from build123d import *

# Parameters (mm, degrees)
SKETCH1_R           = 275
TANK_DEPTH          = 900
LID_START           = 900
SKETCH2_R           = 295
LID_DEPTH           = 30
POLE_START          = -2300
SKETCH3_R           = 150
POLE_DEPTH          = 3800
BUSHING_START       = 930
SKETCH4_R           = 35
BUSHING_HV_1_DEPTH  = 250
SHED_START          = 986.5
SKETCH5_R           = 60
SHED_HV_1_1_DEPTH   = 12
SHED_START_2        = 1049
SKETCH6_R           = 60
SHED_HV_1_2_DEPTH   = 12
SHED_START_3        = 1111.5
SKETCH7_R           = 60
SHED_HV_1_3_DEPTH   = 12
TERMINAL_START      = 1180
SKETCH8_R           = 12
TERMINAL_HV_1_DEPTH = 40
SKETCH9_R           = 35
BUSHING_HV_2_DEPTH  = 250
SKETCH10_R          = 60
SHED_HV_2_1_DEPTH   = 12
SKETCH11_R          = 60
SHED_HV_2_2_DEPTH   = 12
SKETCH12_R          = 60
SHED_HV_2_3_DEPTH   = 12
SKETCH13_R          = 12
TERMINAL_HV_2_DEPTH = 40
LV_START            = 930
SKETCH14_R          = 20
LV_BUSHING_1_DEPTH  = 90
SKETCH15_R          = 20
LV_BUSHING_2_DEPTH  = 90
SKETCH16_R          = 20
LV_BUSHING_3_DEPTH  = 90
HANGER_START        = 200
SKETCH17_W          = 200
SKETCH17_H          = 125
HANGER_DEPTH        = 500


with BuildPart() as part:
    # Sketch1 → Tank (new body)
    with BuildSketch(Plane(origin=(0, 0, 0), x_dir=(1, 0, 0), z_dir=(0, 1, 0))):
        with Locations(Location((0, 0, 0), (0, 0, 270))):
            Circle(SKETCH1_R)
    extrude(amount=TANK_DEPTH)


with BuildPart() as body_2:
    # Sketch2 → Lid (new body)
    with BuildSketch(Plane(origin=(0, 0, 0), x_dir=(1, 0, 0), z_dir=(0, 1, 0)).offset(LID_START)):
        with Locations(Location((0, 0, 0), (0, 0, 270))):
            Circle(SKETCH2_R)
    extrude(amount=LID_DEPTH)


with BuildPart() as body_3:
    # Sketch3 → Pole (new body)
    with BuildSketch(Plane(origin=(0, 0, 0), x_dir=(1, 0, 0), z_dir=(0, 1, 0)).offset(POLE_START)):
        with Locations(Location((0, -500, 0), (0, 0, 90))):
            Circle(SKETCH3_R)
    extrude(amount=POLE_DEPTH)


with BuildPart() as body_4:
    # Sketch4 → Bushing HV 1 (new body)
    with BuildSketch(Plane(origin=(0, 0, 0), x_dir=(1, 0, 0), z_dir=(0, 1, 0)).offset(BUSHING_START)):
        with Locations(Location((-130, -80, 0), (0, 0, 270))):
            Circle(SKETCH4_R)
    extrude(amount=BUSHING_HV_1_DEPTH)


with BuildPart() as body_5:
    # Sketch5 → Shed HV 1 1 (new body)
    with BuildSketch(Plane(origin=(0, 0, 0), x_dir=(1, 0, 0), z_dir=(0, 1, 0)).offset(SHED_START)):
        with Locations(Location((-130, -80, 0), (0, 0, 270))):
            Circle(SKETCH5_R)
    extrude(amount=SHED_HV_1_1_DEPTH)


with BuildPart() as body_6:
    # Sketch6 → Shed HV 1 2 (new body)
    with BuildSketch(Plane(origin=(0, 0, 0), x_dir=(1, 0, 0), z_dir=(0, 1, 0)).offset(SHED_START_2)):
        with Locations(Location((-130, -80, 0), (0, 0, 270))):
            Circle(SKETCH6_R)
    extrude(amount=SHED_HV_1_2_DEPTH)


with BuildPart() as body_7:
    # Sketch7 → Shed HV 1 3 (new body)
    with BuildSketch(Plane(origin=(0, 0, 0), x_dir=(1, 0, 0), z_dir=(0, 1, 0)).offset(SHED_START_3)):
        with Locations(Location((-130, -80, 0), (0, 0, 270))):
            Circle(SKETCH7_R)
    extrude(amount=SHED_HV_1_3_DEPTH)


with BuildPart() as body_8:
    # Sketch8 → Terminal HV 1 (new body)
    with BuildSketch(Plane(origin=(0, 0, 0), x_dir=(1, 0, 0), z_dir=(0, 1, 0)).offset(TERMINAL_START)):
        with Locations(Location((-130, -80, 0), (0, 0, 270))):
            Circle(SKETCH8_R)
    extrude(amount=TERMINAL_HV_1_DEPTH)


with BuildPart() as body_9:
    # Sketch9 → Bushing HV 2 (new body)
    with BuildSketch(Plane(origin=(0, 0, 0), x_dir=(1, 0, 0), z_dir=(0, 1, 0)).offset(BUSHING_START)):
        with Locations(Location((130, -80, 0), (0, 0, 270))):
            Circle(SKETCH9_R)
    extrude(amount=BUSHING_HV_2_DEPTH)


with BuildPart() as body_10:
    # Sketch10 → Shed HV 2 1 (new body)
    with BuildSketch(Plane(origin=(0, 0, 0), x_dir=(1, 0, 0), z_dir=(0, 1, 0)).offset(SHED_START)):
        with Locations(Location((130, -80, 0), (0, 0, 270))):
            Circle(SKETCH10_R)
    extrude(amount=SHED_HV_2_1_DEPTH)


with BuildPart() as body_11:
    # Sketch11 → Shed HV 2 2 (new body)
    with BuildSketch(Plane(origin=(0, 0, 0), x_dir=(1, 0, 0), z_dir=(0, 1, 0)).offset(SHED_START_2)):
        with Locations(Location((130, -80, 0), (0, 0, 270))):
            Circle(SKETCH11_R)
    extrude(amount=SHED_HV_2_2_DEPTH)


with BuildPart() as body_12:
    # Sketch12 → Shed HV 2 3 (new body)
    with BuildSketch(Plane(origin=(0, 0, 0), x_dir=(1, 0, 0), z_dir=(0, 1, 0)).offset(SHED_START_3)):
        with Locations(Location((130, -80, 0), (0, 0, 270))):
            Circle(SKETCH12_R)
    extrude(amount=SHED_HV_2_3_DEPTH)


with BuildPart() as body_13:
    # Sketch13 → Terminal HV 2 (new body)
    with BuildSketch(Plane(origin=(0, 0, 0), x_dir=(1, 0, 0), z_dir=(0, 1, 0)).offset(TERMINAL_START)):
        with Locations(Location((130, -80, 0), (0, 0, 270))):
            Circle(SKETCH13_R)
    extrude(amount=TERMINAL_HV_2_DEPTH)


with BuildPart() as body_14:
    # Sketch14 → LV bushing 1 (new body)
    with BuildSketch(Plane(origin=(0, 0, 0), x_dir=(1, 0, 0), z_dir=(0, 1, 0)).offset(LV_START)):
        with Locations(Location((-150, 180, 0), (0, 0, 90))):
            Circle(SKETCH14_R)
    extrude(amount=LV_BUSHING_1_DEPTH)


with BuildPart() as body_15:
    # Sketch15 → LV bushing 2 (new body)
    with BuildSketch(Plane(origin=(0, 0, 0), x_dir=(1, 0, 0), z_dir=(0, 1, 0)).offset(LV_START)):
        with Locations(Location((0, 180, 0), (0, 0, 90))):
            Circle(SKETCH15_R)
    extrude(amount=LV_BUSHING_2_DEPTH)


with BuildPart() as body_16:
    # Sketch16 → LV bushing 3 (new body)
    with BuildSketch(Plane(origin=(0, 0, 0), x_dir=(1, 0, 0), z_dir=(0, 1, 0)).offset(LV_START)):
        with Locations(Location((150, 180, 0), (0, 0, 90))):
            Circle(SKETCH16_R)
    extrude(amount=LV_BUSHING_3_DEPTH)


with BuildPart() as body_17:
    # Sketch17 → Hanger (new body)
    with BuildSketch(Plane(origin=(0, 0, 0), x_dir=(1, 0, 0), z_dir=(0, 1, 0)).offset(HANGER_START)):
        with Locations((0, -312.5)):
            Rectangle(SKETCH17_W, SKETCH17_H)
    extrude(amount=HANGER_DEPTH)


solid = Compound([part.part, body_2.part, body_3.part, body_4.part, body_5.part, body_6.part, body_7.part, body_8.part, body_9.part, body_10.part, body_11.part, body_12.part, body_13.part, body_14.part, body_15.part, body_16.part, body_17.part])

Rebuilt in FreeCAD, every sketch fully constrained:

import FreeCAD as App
import Part
import Sketcher

doc = App.newDocument("Part")
body = doc.addObject("PartDesign::Body", "Body")

sketch1 = doc.addObject("Sketcher::SketchObject", "Sketch")
body.addObject(sketch1)
sketch1.AttachmentSupport = (doc.XZ_Plane, [""])
sketch1.MapMode = "FlatFace"
sketch1.addGeometry(Part.Circle(App.Vector(0, 0, 0), App.Vector(0, 0, 1), 275), False)
sketch1.addConstraint([
    Sketcher.Constraint("Coincident", 0, 3, -1, 1),
    Sketcher.Constraint("Diameter", 0, 550.0),
])
pad1 = doc.addObject("PartDesign::Pad", "Pad")
body.addObject(pad1)
pad1.Profile = sketch1
pad1.Length = 900
pad1.Reversed = True
body2 = doc.addObject("PartDesign::Body", "Body001")

sketch2 = doc.addObject("Sketcher::SketchObject", "Sketch001")
body2.addObject(sketch2)
sketch2.AttachmentSupport = (doc.getObject("XZ_Plane001"), [""])
sketch2.MapMode = "FlatFace"
sketch2.AttachmentOffset = App.Placement(App.Vector(0, 0, -900), App.Rotation())
sketch2.addGeometry(Part.Circle(App.Vector(0, 0, 0), App.Vector(0, 0, 1), 295), False)
sketch2.addConstraint([
    Sketcher.Constraint("Coincident", 0, 3, -1, 1),
    Sketcher.Constraint("Diameter", 0, 590.0),
])
pad2 = doc.addObject("PartDesign::Pad", "Pad001")
body2.addObject(pad2)
pad2.Profile = sketch2
pad2.Length = 30
pad2.Reversed = True
body3 = doc.addObject("PartDesign::Body", "Body002")

sketch3 = doc.addObject("Sketcher::SketchObject", "Sketch002")
body3.addObject(sketch3)
sketch3.AttachmentSupport = (doc.getObject("XZ_Plane002"), [""])
sketch3.MapMode = "FlatFace"
sketch3.AttachmentOffset = App.Placement(App.Vector(0, 0, 2300), App.Rotation())
sketch3.addGeometry(Part.Circle(App.Vector(0, 500, 0), App.Vector(0, 0, 1), 150), False)
sketch3.addConstraint([
    Sketcher.Constraint("PointOnObject", 0, 3, -2),
    Sketcher.Constraint("Diameter", 0, 300.0),
    Sketcher.Constraint("DistanceY", -1, 1, 0, 3, 500.0),
])
pad3 = doc.addObject("PartDesign::Pad", "Pad002")
body3.addObject(pad3)
pad3.Profile = sketch3
pad3.Length = 3800
pad3.Reversed = True
body4 = doc.addObject("PartDesign::Body", "Body003")

sketch4 = doc.addObject("Sketcher::SketchObject", "Sketch003")
body4.addObject(sketch4)
sketch4.AttachmentSupport = (doc.getObject("XZ_Plane003"), [""])
sketch4.MapMode = "FlatFace"
sketch4.AttachmentOffset = App.Placement(App.Vector(0, 0, -930), App.Rotation())
sketch4.addGeometry(Part.Circle(App.Vector(-130, 80, 0), App.Vector(0, 0, 1), 35), False)
sketch4.addConstraint([
    Sketcher.Constraint("Diameter", 0, 70.0),
    Sketcher.Constraint("DistanceX", 0, 3, -1, 1, 130.0),
    Sketcher.Constraint("DistanceY", -1, 1, 0, 3, 80.0),
])
pad4 = doc.addObject("PartDesign::Pad", "Pad003")
body4.addObject(pad4)
pad4.Profile = sketch4
pad4.Length = 250
pad4.Reversed = True
body5 = doc.addObject("PartDesign::Body", "Body004")

sketch5 = doc.addObject("Sketcher::SketchObject", "Sketch004")
body5.addObject(sketch5)
sketch5.AttachmentSupport = (doc.getObject("XZ_Plane004"), [""])
sketch5.MapMode = "FlatFace"
sketch5.AttachmentOffset = App.Placement(App.Vector(0, 0, -986.5), App.Rotation())
sketch5.addGeometry(Part.Circle(App.Vector(-130, 80, 0), App.Vector(0, 0, 1), 60), False)
sketch5.addConstraint([
    Sketcher.Constraint("Diameter", 0, 120.0),
    Sketcher.Constraint("DistanceX", 0, 3, -1, 1, 130.0),
    Sketcher.Constraint("DistanceY", -1, 1, 0, 3, 80.0),
])
pad5 = doc.addObject("PartDesign::Pad", "Pad004")
body5.addObject(pad5)
pad5.Profile = sketch5
pad5.Length = 12
pad5.Reversed = True
body6 = doc.addObject("PartDesign::Body", "Body005")

sketch6 = doc.addObject("Sketcher::SketchObject", "Sketch005")
body6.addObject(sketch6)
sketch6.AttachmentSupport = (doc.getObject("XZ_Plane005"), [""])
sketch6.MapMode = "FlatFace"
sketch6.AttachmentOffset = App.Placement(App.Vector(0, 0, -1049), App.Rotation())
sketch6.addGeometry(Part.Circle(App.Vector(-130, 80, 0), App.Vector(0, 0, 1), 60), False)
sketch6.addConstraint([
    Sketcher.Constraint("Diameter", 0, 120.0),
    Sketcher.Constraint("DistanceX", 0, 3, -1, 1, 130.0),
    Sketcher.Constraint("DistanceY", -1, 1, 0, 3, 80.0),
])
pad6 = doc.addObject("PartDesign::Pad", "Pad005")
body6.addObject(pad6)
pad6.Profile = sketch6
pad6.Length = 12
pad6.Reversed = True
body7 = doc.addObject("PartDesign::Body", "Body006")

sketch7 = doc.addObject("Sketcher::SketchObject", "Sketch006")
body7.addObject(sketch7)
sketch7.AttachmentSupport = (doc.getObject("XZ_Plane006"), [""])
sketch7.MapMode = "FlatFace"
sketch7.AttachmentOffset = App.Placement(App.Vector(0, 0, -1111.5), App.Rotation())
sketch7.addGeometry(Part.Circle(App.Vector(-130, 80, 0), App.Vector(0, 0, 1), 60), False)
sketch7.addConstraint([
    Sketcher.Constraint("Diameter", 0, 120.0),
    Sketcher.Constraint("DistanceX", 0, 3, -1, 1, 130.0),
    Sketcher.Constraint("DistanceY", -1, 1, 0, 3, 80.0),
])
pad7 = doc.addObject("PartDesign::Pad", "Pad006")
body7.addObject(pad7)
pad7.Profile = sketch7
pad7.Length = 12
pad7.Reversed = True
body8 = doc.addObject("PartDesign::Body", "Body007")

sketch8 = doc.addObject("Sketcher::SketchObject", "Sketch007")
body8.addObject(sketch8)
sketch8.AttachmentSupport = (doc.getObject("XZ_Plane007"), [""])
sketch8.MapMode = "FlatFace"
sketch8.AttachmentOffset = App.Placement(App.Vector(0, 0, -1180), App.Rotation())
sketch8.addGeometry(Part.Circle(App.Vector(-130, 80, 0), App.Vector(0, 0, 1), 12), False)
sketch8.addConstraint([
    Sketcher.Constraint("Diameter", 0, 24.0),
    Sketcher.Constraint("DistanceX", 0, 3, -1, 1, 130.0),
    Sketcher.Constraint("DistanceY", -1, 1, 0, 3, 80.0),
])
pad8 = doc.addObject("PartDesign::Pad", "Pad007")
body8.addObject(pad8)
pad8.Profile = sketch8
pad8.Length = 40
pad8.Reversed = True
body9 = doc.addObject("PartDesign::Body", "Body008")

sketch9 = doc.addObject("Sketcher::SketchObject", "Sketch008")
body9.addObject(sketch9)
sketch9.AttachmentSupport = (doc.getObject("XZ_Plane008"), [""])
sketch9.MapMode = "FlatFace"
sketch9.AttachmentOffset = App.Placement(App.Vector(0, 0, -930), App.Rotation())
sketch9.addGeometry(Part.Circle(App.Vector(130, 80, 0), App.Vector(0, 0, 1), 35), False)
sketch9.addConstraint([
    Sketcher.Constraint("Diameter", 0, 70.0),
    Sketcher.Constraint("DistanceX", -1, 1, 0, 3, 130.0),
    Sketcher.Constraint("DistanceY", -1, 1, 0, 3, 80.0),
])
pad9 = doc.addObject("PartDesign::Pad", "Pad008")
body9.addObject(pad9)
pad9.Profile = sketch9
pad9.Length = 250
pad9.Reversed = True
body10 = doc.addObject("PartDesign::Body", "Body009")

sketch10 = doc.addObject("Sketcher::SketchObject", "Sketch009")
body10.addObject(sketch10)
sketch10.AttachmentSupport = (doc.getObject("XZ_Plane009"), [""])
sketch10.MapMode = "FlatFace"
sketch10.AttachmentOffset = App.Placement(App.Vector(0, 0, -986.5), App.Rotation())
sketch10.addGeometry(Part.Circle(App.Vector(130, 80, 0), App.Vector(0, 0, 1), 60), False)
sketch10.addConstraint([
    Sketcher.Constraint("Diameter", 0, 120.0),
    Sketcher.Constraint("DistanceX", -1, 1, 0, 3, 130.0),
    Sketcher.Constraint("DistanceY", -1, 1, 0, 3, 80.0),
])
pad10 = doc.addObject("PartDesign::Pad", "Pad009")
body10.addObject(pad10)
pad10.Profile = sketch10
pad10.Length = 12
pad10.Reversed = True
body11 = doc.addObject("PartDesign::Body", "Body010")

sketch11 = doc.addObject("Sketcher::SketchObject", "Sketch010")
body11.addObject(sketch11)
sketch11.AttachmentSupport = (doc.getObject("XZ_Plane010"), [""])
sketch11.MapMode = "FlatFace"
sketch11.AttachmentOffset = App.Placement(App.Vector(0, 0, -1049), App.Rotation())
sketch11.addGeometry(Part.Circle(App.Vector(130, 80, 0), App.Vector(0, 0, 1), 60), False)
sketch11.addConstraint([
    Sketcher.Constraint("Diameter", 0, 120.0),
    Sketcher.Constraint("DistanceX", -1, 1, 0, 3, 130.0),
    Sketcher.Constraint("DistanceY", -1, 1, 0, 3, 80.0),
])
pad11 = doc.addObject("PartDesign::Pad", "Pad010")
body11.addObject(pad11)
pad11.Profile = sketch11
pad11.Length = 12
pad11.Reversed = True
body12 = doc.addObject("PartDesign::Body", "Body011")

sketch12 = doc.addObject("Sketcher::SketchObject", "Sketch011")
body12.addObject(sketch12)
sketch12.AttachmentSupport = (doc.getObject("XZ_Plane011"), [""])
sketch12.MapMode = "FlatFace"
sketch12.AttachmentOffset = App.Placement(App.Vector(0, 0, -1111.5), App.Rotation())
sketch12.addGeometry(Part.Circle(App.Vector(130, 80, 0), App.Vector(0, 0, 1), 60), False)
sketch12.addConstraint([
    Sketcher.Constraint("Diameter", 0, 120.0),
    Sketcher.Constraint("DistanceX", -1, 1, 0, 3, 130.0),
    Sketcher.Constraint("DistanceY", -1, 1, 0, 3, 80.0),
])
pad12 = doc.addObject("PartDesign::Pad", "Pad011")
body12.addObject(pad12)
pad12.Profile = sketch12
pad12.Length = 12
pad12.Reversed = True
body13 = doc.addObject("PartDesign::Body", "Body012")

sketch13 = doc.addObject("Sketcher::SketchObject", "Sketch012")
body13.addObject(sketch13)
sketch13.AttachmentSupport = (doc.getObject("XZ_Plane012"), [""])
sketch13.MapMode = "FlatFace"
sketch13.AttachmentOffset = App.Placement(App.Vector(0, 0, -1180), App.Rotation())
sketch13.addGeometry(Part.Circle(App.Vector(130, 80, 0), App.Vector(0, 0, 1), 12), False)
sketch13.addConstraint([
    Sketcher.Constraint("Diameter", 0, 24.0),
    Sketcher.Constraint("DistanceX", -1, 1, 0, 3, 130.0),
    Sketcher.Constraint("DistanceY", -1, 1, 0, 3, 80.0),
])
pad13 = doc.addObject("PartDesign::Pad", "Pad012")
body13.addObject(pad13)
pad13.Profile = sketch13
pad13.Length = 40
pad13.Reversed = True
body14 = doc.addObject("PartDesign::Body", "Body013")

sketch14 = doc.addObject("Sketcher::SketchObject", "Sketch013")
body14.addObject(sketch14)
sketch14.AttachmentSupport = (doc.getObject("XZ_Plane013"), [""])
sketch14.MapMode = "FlatFace"
sketch14.AttachmentOffset = App.Placement(App.Vector(0, 0, -930), App.Rotation())
sketch14.addGeometry(Part.Circle(App.Vector(-150, -180, 0), App.Vector(0, 0, 1), 20), False)
sketch14.addConstraint([
    Sketcher.Constraint("Diameter", 0, 40.0),
    Sketcher.Constraint("DistanceX", 0, 3, -1, 1, 150.0),
    Sketcher.Constraint("DistanceY", 0, 3, -1, 1, 180.0),
])
pad14 = doc.addObject("PartDesign::Pad", "Pad013")
body14.addObject(pad14)
pad14.Profile = sketch14
pad14.Length = 90
pad14.Reversed = True
body15 = doc.addObject("PartDesign::Body", "Body014")

sketch15 = doc.addObject("Sketcher::SketchObject", "Sketch014")
body15.addObject(sketch15)
sketch15.AttachmentSupport = (doc.getObject("XZ_Plane014"), [""])
sketch15.MapMode = "FlatFace"
sketch15.AttachmentOffset = App.Placement(App.Vector(0, 0, -930), App.Rotation())
sketch15.addGeometry(Part.Circle(App.Vector(0, -180, 0), App.Vector(0, 0, 1), 20), False)
sketch15.addConstraint([
    Sketcher.Constraint("PointOnObject", 0, 3, -2),
    Sketcher.Constraint("Diameter", 0, 40.0),
    Sketcher.Constraint("DistanceY", 0, 3, -1, 1, 180.0),
])
pad15 = doc.addObject("PartDesign::Pad", "Pad014")
body15.addObject(pad15)
pad15.Profile = sketch15
pad15.Length = 90
pad15.Reversed = True
body16 = doc.addObject("PartDesign::Body", "Body015")

sketch16 = doc.addObject("Sketcher::SketchObject", "Sketch015")
body16.addObject(sketch16)
sketch16.AttachmentSupport = (doc.getObject("XZ_Plane015"), [""])
sketch16.MapMode = "FlatFace"
sketch16.AttachmentOffset = App.Placement(App.Vector(0, 0, -930), App.Rotation())
sketch16.addGeometry(Part.Circle(App.Vector(150, -180, 0), App.Vector(0, 0, 1), 20), False)
sketch16.addConstraint([
    Sketcher.Constraint("Diameter", 0, 40.0),
    Sketcher.Constraint("DistanceX", -1, 1, 0, 3, 150.0),
    Sketcher.Constraint("DistanceY", 0, 3, -1, 1, 180.0),
])
pad16 = doc.addObject("PartDesign::Pad", "Pad015")
body16.addObject(pad16)
pad16.Profile = sketch16
pad16.Length = 90
pad16.Reversed = True
body17 = doc.addObject("PartDesign::Body", "Body016")

sketch17 = doc.addObject("Sketcher::SketchObject", "Sketch016")
body17.addObject(sketch17)
sketch17.AttachmentSupport = (doc.getObject("XZ_Plane016"), [""])
sketch17.MapMode = "FlatFace"
sketch17.AttachmentOffset = App.Placement(App.Vector(0, 0, -200), App.Rotation())
sketch17.addGeometry([
    Part.LineSegment(App.Vector(-100, 250, 0), App.Vector(-100, 375, 0)),
    Part.LineSegment(App.Vector(-100, 375, 0), App.Vector(100, 375, 0)),
    Part.LineSegment(App.Vector(100, 375, 0), App.Vector(100, 250, 0)),
    Part.LineSegment(App.Vector(100, 250, 0), App.Vector(-100, 250, 0)),
], False)
sketch17.addConstraint([
    Sketcher.Constraint("Coincident", 0, 2, 1, 1),
    Sketcher.Constraint("Coincident", 1, 2, 2, 1),
    Sketcher.Constraint("Coincident", 2, 2, 3, 1),
    Sketcher.Constraint("Coincident", 3, 2, 0, 1),
    Sketcher.Constraint("Vertical", 0),
    Sketcher.Constraint("Horizontal", 1),
    Sketcher.Constraint("Vertical", 2),
    Sketcher.Constraint("Horizontal", 3),
    Sketcher.Constraint("DistanceX", 1, 1, 1, 2, 200.0),
    Sketcher.Constraint("DistanceY", 0, 1, 0, 2, 125.0),
    Sketcher.Constraint("DistanceX", 0, 2, -1, 1, 100.0),
    Sketcher.Constraint("DistanceY", -1, 1, 0, 2, 375.0),
])
pad17 = doc.addObject("PartDesign::Pad", "Pad016")
body17.addObject(pad17)
pad17.Profile = sketch17
pad17.Length = 500
pad17.Reversed = True

doc.recompute()
